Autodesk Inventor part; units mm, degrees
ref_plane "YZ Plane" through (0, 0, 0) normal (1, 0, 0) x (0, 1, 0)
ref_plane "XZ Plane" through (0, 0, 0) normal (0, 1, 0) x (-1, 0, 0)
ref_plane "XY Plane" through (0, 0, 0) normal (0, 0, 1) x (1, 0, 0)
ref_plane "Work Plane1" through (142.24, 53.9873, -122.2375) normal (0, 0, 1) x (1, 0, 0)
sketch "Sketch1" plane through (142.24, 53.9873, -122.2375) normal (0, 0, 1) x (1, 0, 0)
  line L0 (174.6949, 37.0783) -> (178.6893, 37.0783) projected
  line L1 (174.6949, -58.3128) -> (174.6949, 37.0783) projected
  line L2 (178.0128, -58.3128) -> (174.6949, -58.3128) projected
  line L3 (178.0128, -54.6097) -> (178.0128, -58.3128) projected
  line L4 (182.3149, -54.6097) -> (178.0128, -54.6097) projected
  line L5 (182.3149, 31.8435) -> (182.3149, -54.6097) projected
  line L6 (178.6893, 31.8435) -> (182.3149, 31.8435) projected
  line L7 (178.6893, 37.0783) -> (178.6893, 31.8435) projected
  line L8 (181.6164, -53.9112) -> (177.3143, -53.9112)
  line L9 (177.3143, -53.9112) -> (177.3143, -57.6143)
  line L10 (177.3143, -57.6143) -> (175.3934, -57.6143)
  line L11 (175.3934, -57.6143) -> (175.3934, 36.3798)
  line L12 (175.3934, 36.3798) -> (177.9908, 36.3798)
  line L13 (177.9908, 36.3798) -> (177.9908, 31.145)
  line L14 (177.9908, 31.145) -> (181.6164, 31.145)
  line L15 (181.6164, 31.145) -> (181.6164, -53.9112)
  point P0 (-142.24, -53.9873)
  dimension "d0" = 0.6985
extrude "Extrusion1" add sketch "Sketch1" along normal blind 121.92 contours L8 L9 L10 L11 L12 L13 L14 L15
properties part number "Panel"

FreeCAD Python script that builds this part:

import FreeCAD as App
import Part
import Sketcher
Q = App.Units.Quantity

doc = App.newDocument("Part")
params = doc.addObject("Spreadsheet::Sheet", "Params")
for row, (alias, value) in enumerate([
    ("pad1_length", "4.8 in"),
], start=1):
    params.set(f"A{row}", alias)
    params.set(f"B{row}", "=" + value)
    params.setAlias(f"B{row}", alias)

body = doc.addObject("PartDesign::Body", "Body")

# Sketch on XY plane
sketch1 = doc.addObject("Sketcher::SketchObject", "Sketch")
body.addObject(sketch1)
sketch1.AttachmentSupport = (doc.XY_Plane, [""])
sketch1.MapMode = "FlatFace"
sketch1.AttachmentOffset = App.Placement(App.Vector(0, 0, -4.8125 * 25.4), App.Rotation())
sketch1.addGeometry([
    Part.LineSegment(App.Vector(319.5543, 0.0761, 0), App.Vector(323.8564, 0.0761, 0)),  # 0
    Part.LineSegment(App.Vector(323.8564, 0.0761, 0), App.Vector(323.8564, 85.1323, 0)),  # 1
    Part.LineSegment(App.Vector(323.8564, 85.1323, 0), App.Vector(320.2308, 85.1323, 0)),  # 2
    Part.LineSegment(App.Vector(320.2308, 85.1323, 0), App.Vector(320.2308, 90.3671, 0)),  # 3
    Part.LineSegment(App.Vector(320.2308, 90.3671, 0), App.Vector(317.6334, 90.3671, 0)),  # 4
    Part.LineSegment(App.Vector(317.6334, 90.3671, 0), App.Vector(317.6334, -3.627, 0)),  # 5
    Part.LineSegment(App.Vector(317.6334, -3.627, 0), App.Vector(319.5543, -3.627, 0)),  # 6
    Part.LineSegment(App.Vector(319.5543, -3.627, 0), App.Vector(319.5543, 0.0761, 0)),  # 7
], False)
sketch1.addConstraint([
    Sketcher.Constraint("Coincident", 0, 2, 1, 1),
    Sketcher.Constraint("Coincident", 1, 2, 2, 1),
    Sketcher.Constraint("Coincident", 2, 2, 3, 1),
    Sketcher.Constraint("Coincident", 3, 2, 4, 1),
    Sketcher.Constraint("Coincident", 4, 2, 5, 1),
    Sketcher.Constraint("Coincident", 5, 2, 6, 1),
    Sketcher.Constraint("Coincident", 6, 2, 7, 1),
    Sketcher.Constraint("Coincident", 7, 2, 0, 1),
    Sketcher.Constraint("Horizontal", 0),
    Sketcher.Constraint("Vertical", 1),
    Sketcher.Constraint("Horizontal", 2),
    Sketcher.Constraint("Vertical", 3),
    Sketcher.Constraint("Horizontal", 4),
    Sketcher.Constraint("Vertical", 5),
    Sketcher.Constraint("Horizontal", 6),
    Sketcher.Constraint("Vertical", 7),
    Sketcher.Constraint("DistanceY", 3, 1, 3, 2, Q("0.2061 in")),
    Sketcher.Constraint("DistanceY", 7, 1, 7, 2, Q("0.1458 in")),
    Sketcher.Constraint("DistanceY", -1, 1, 0, 2, Q("0.003 in")),
    Sketcher.Constraint("DistanceX", 4, 2, 1, 2, Q("0.245 in")),
    Sketcher.Constraint("DistanceX", 0, 1, 0, 2, 4.302),
    Sketcher.Constraint("DistanceX", 2, 2, 2, 1, 3.6256),
    Sketcher.Constraint("DistanceY", 1, 1, 1, 2, 85.0562),
    Sketcher.Constraint("DistanceX", -1, 1, 2, 2, Q("12.6075 in")),
])
pad1 = doc.addObject("PartDesign::Pad", "Pad")
body.addObject(pad1)
pad1.Profile = sketch1
pad1.setExpression("Length", "Params.pad1_length")

doc.recompute()
